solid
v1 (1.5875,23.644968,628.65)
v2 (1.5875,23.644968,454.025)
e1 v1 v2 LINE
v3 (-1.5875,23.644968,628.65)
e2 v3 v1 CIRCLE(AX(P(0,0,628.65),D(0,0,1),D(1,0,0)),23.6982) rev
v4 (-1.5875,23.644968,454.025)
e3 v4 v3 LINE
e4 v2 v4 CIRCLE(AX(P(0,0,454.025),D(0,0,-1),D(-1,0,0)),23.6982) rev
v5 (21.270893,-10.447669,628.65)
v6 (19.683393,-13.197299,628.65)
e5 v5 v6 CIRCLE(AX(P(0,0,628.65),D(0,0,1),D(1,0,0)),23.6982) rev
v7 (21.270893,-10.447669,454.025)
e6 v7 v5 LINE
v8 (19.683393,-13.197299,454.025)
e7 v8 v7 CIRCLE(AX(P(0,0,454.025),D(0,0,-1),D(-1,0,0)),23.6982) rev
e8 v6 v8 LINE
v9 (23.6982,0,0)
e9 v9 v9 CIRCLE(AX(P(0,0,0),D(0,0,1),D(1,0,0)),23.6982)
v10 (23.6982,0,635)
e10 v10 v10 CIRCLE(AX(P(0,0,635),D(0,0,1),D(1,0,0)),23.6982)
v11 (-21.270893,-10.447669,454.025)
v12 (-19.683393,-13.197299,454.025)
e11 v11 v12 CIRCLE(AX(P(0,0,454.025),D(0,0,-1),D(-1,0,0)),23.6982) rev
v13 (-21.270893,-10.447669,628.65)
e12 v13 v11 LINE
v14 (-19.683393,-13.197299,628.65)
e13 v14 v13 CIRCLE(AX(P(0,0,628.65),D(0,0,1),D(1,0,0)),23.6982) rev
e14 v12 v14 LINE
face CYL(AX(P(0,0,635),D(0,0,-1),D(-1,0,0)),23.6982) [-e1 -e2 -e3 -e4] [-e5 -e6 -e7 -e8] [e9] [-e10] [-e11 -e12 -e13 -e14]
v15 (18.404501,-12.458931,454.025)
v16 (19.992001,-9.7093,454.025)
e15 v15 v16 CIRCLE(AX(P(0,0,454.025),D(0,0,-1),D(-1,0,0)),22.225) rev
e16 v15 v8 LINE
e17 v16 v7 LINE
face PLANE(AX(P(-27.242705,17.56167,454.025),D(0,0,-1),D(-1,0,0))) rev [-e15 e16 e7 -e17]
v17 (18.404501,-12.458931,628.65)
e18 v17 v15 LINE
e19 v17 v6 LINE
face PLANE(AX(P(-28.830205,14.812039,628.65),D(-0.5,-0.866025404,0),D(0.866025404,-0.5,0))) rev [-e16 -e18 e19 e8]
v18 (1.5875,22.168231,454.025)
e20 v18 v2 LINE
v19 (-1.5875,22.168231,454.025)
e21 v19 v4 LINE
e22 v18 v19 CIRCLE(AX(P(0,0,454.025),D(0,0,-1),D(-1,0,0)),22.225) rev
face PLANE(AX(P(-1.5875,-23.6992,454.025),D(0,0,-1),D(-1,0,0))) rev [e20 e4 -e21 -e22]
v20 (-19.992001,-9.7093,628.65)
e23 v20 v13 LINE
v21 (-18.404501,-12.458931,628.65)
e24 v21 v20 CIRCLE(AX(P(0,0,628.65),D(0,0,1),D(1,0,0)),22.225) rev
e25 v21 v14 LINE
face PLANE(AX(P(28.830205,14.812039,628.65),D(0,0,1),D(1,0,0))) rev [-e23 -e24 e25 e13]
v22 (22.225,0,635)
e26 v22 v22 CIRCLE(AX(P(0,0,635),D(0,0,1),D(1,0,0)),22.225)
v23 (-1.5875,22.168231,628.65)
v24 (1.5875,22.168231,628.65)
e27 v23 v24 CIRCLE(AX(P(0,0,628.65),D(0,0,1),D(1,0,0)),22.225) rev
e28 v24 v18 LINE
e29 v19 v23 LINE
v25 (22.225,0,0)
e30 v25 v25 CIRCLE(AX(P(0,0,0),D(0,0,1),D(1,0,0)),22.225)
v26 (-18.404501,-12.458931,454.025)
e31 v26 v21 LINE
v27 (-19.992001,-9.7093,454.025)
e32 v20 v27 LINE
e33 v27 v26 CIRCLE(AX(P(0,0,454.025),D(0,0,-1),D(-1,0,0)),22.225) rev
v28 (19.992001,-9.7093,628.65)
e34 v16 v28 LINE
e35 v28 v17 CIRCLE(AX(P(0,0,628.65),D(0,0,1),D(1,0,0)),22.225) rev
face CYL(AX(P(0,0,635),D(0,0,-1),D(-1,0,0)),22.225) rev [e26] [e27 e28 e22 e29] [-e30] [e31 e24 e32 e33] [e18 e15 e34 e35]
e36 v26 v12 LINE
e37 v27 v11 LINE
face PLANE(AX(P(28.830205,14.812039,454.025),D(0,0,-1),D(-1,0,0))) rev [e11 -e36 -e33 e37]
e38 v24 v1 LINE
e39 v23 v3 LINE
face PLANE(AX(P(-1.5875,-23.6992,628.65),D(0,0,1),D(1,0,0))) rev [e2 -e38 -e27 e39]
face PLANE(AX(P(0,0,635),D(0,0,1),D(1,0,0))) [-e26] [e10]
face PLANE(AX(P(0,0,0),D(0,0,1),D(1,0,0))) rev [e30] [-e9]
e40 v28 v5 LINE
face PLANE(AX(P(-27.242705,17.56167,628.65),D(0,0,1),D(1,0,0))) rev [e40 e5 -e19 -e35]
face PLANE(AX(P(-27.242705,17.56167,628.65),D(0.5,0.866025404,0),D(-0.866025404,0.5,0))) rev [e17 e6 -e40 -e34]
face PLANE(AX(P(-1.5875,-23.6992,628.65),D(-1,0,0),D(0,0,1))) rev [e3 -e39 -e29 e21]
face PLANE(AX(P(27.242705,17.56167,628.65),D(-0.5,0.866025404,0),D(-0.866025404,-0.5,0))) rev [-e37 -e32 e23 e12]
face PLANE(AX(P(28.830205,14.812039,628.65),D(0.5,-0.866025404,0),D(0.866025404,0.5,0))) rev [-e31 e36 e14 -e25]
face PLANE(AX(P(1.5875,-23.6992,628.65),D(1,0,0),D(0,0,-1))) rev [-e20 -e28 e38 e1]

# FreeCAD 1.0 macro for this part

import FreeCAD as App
import Part
import Sketcher
Q = App.Units.Quantity


def add_polygon(sketch, points):
    """Adds a closed chain of lines whose ends are joined by coincident constraints."""
    first, n = sketch.GeometryCount, len(points)
    for a, b in zip(points, points[1:] + points[:1]):
        sketch.addGeometry(Part.LineSegment(App.Vector(*a, 0), App.Vector(*b, 0)), False)
    for i in range(n):
        sketch.addConstraint(Sketcher.Constraint("Coincident", first + i, 2, first + (i + 1) % n, 1))

doc = App.newDocument("Part")
body = doc.addObject("PartDesign::Body", "Body")

# Sketch on XY plane
sketch1 = body.newObject("Sketcher::SketchObject", "Sketch")
sketch1.AttachmentSupport = (doc.getObject("XY_Plane"), [""])
sketch1.MapMode = "FlatFace"
sketch1.addGeometry(Part.Circle(App.Vector(0, 0, 0), App.Vector(0, 0, 1), 24), False)
sketch1.addGeometry(Part.Circle(App.Vector(0, 0, 0), App.Vector(0, 0, 1), 22), False)
sketch1.addConstraint(Sketcher.Constraint("Coincident", 0, 3, -1, 1))
sketch1.addConstraint(Sketcher.Constraint("Coincident", 1, 3, -1, 1))
sketch1.addConstraint(Sketcher.Constraint("Diameter", 1, Q("1.75 in")))
sketch1.addConstraint(Sketcher.Constraint("Diameter", 0, Q("1.866 in")))
pad1 = body.newObject("PartDesign::Pad", "Pad")
pad1.Profile = sketch1
pad1.Length = Q("25 in")

# Sketch on XZ plane
sketch2 = body.newObject("Sketcher::SketchObject", "Sketch001")
sketch2.AttachmentSupport = (doc.getObject("XZ_Plane"), [""])
sketch2.MapMode = "FlatFace"
sketch2.AttachmentOffset = App.Placement(App.Vector(0, 0, -22.168231), App.Rotation())
add_polygon(sketch2, [(-1.6, 454), (-1.6, 628.6), (1.6, 628.6), (1.6, 454)])  # lines 0-3
sketch2.addConstraint(Sketcher.Constraint("Vertical", 0))
sketch2.addConstraint(Sketcher.Constraint("Horizontal", 1))
sketch2.addConstraint(Sketcher.Constraint("Vertical", 2))
sketch2.addConstraint(Sketcher.Constraint("Horizontal", 3))
sketch2.addConstraint(Sketcher.Constraint("DistanceX", 1, 1, 1, 2, Q("0.125 in")))
sketch2.addConstraint(Sketcher.Constraint("DistanceY", 0, 1, 0, 2, Q("6.875 in")))
sketch2.addConstraint(Sketcher.Constraint("DistanceY", -1, 1, 0, 2, Q("24.75 in")))
sketch2.addConstraint(Sketcher.Constraint("DistanceX", 0, 2, -1, 1, Q("0.0625 in")))
pocket1 = body.newObject("PartDesign::Pocket", "Pocket")
pocket1.Profile = sketch2
pocket1.Length = 1.529969
doc.recompute()

polarpattern = body.newObject("PartDesign::PolarPattern", "PolarPattern")
polarpattern.Originals = [pocket1]
polarpattern.Axis = (doc.getObject("Z_Axis"), [""])
polarpattern.Angle = 360
polarpattern.Occurrences = 3
body.Tip = polarpattern

doc.recompute()
